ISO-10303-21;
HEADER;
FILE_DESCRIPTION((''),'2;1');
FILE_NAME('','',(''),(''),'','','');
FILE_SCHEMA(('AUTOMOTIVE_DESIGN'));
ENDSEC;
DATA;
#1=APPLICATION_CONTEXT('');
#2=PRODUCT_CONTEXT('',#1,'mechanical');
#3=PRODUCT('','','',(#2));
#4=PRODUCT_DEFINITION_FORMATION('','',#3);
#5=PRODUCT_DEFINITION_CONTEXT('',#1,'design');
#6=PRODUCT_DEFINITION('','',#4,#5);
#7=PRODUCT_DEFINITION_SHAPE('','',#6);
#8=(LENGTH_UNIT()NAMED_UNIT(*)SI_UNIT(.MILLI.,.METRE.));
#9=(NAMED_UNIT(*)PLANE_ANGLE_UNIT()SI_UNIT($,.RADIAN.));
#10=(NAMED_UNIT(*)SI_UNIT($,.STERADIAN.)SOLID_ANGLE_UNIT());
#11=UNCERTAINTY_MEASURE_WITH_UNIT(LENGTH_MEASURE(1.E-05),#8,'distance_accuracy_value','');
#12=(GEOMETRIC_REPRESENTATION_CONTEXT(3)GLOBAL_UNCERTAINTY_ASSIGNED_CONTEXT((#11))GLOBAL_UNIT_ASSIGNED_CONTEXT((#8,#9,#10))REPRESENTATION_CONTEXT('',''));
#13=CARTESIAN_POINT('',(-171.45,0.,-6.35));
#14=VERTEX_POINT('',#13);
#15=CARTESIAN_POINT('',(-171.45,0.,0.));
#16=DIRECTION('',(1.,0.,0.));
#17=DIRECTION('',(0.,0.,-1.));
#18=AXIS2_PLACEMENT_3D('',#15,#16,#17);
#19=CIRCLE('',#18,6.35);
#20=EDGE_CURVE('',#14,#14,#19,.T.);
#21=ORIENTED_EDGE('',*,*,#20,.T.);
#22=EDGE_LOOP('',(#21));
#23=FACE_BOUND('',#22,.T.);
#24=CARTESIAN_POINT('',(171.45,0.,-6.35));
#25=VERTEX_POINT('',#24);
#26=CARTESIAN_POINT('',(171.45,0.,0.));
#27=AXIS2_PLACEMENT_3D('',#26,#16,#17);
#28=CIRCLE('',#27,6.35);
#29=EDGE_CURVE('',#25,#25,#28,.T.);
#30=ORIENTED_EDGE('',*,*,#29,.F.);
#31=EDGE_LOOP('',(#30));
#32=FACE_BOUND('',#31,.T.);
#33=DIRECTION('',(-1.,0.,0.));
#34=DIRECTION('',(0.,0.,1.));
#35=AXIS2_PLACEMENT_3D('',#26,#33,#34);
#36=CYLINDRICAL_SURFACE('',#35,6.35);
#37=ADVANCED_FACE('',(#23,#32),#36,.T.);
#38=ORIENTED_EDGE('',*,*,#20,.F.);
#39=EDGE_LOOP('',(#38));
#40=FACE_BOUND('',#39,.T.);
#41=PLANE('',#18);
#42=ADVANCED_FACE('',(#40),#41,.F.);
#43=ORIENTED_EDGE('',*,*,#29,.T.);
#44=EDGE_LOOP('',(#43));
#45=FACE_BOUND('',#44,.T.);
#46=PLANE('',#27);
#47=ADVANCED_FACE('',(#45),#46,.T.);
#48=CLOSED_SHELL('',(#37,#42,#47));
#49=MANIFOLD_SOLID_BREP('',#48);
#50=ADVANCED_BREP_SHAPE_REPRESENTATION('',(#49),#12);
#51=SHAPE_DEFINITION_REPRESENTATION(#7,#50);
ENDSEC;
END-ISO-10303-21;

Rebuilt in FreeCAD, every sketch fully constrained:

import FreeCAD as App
import Part
import Sketcher
from FreeCAD import Vector
Q = App.Units.Quantity

doc = App.newDocument("Part")
params = doc.addObject("Spreadsheet::Sheet", "Params")
for row, (alias, value) in enumerate([
    ("sketch1_diameter", "0.5 in"),
    ("pad1_length", "13.5 in"),
], start=1):
    params.set(f"A{row}", alias)
    params.set(f"B{row}", "=" + value)
    params.setAlias(f"B{row}", alias)

body = doc.addObject("PartDesign::Body", "Body")

# Sketch on YZ plane
sketch1 = doc.addObject("Sketcher::SketchObject", "Sketch")
body.addObject(sketch1)
sketch1.AttachmentSupport = (doc.YZ_Plane, [""])
sketch1.MapMode = "FlatFace"
sketch1.addGeometry(Part.Circle(Vector(0, 0, 0), Vector(0, 0, 1), 6), False)
sketch1.addConstraint(Sketcher.Constraint("Coincident", 0, 3, -1, 1))
sketch1.addConstraint(Sketcher.Constraint("Diameter", 0, Q("0.5 in")))
sketch1.setExpression("Constraints[1]", "Params.sketch1_diameter")
pad1 = doc.addObject("PartDesign::Pad", "Pad")
body.addObject(pad1)
pad1.Profile = sketch1
pad1.setExpression("Length", "Params.pad1_length")
pad1.Midplane = True

doc.recompute()
